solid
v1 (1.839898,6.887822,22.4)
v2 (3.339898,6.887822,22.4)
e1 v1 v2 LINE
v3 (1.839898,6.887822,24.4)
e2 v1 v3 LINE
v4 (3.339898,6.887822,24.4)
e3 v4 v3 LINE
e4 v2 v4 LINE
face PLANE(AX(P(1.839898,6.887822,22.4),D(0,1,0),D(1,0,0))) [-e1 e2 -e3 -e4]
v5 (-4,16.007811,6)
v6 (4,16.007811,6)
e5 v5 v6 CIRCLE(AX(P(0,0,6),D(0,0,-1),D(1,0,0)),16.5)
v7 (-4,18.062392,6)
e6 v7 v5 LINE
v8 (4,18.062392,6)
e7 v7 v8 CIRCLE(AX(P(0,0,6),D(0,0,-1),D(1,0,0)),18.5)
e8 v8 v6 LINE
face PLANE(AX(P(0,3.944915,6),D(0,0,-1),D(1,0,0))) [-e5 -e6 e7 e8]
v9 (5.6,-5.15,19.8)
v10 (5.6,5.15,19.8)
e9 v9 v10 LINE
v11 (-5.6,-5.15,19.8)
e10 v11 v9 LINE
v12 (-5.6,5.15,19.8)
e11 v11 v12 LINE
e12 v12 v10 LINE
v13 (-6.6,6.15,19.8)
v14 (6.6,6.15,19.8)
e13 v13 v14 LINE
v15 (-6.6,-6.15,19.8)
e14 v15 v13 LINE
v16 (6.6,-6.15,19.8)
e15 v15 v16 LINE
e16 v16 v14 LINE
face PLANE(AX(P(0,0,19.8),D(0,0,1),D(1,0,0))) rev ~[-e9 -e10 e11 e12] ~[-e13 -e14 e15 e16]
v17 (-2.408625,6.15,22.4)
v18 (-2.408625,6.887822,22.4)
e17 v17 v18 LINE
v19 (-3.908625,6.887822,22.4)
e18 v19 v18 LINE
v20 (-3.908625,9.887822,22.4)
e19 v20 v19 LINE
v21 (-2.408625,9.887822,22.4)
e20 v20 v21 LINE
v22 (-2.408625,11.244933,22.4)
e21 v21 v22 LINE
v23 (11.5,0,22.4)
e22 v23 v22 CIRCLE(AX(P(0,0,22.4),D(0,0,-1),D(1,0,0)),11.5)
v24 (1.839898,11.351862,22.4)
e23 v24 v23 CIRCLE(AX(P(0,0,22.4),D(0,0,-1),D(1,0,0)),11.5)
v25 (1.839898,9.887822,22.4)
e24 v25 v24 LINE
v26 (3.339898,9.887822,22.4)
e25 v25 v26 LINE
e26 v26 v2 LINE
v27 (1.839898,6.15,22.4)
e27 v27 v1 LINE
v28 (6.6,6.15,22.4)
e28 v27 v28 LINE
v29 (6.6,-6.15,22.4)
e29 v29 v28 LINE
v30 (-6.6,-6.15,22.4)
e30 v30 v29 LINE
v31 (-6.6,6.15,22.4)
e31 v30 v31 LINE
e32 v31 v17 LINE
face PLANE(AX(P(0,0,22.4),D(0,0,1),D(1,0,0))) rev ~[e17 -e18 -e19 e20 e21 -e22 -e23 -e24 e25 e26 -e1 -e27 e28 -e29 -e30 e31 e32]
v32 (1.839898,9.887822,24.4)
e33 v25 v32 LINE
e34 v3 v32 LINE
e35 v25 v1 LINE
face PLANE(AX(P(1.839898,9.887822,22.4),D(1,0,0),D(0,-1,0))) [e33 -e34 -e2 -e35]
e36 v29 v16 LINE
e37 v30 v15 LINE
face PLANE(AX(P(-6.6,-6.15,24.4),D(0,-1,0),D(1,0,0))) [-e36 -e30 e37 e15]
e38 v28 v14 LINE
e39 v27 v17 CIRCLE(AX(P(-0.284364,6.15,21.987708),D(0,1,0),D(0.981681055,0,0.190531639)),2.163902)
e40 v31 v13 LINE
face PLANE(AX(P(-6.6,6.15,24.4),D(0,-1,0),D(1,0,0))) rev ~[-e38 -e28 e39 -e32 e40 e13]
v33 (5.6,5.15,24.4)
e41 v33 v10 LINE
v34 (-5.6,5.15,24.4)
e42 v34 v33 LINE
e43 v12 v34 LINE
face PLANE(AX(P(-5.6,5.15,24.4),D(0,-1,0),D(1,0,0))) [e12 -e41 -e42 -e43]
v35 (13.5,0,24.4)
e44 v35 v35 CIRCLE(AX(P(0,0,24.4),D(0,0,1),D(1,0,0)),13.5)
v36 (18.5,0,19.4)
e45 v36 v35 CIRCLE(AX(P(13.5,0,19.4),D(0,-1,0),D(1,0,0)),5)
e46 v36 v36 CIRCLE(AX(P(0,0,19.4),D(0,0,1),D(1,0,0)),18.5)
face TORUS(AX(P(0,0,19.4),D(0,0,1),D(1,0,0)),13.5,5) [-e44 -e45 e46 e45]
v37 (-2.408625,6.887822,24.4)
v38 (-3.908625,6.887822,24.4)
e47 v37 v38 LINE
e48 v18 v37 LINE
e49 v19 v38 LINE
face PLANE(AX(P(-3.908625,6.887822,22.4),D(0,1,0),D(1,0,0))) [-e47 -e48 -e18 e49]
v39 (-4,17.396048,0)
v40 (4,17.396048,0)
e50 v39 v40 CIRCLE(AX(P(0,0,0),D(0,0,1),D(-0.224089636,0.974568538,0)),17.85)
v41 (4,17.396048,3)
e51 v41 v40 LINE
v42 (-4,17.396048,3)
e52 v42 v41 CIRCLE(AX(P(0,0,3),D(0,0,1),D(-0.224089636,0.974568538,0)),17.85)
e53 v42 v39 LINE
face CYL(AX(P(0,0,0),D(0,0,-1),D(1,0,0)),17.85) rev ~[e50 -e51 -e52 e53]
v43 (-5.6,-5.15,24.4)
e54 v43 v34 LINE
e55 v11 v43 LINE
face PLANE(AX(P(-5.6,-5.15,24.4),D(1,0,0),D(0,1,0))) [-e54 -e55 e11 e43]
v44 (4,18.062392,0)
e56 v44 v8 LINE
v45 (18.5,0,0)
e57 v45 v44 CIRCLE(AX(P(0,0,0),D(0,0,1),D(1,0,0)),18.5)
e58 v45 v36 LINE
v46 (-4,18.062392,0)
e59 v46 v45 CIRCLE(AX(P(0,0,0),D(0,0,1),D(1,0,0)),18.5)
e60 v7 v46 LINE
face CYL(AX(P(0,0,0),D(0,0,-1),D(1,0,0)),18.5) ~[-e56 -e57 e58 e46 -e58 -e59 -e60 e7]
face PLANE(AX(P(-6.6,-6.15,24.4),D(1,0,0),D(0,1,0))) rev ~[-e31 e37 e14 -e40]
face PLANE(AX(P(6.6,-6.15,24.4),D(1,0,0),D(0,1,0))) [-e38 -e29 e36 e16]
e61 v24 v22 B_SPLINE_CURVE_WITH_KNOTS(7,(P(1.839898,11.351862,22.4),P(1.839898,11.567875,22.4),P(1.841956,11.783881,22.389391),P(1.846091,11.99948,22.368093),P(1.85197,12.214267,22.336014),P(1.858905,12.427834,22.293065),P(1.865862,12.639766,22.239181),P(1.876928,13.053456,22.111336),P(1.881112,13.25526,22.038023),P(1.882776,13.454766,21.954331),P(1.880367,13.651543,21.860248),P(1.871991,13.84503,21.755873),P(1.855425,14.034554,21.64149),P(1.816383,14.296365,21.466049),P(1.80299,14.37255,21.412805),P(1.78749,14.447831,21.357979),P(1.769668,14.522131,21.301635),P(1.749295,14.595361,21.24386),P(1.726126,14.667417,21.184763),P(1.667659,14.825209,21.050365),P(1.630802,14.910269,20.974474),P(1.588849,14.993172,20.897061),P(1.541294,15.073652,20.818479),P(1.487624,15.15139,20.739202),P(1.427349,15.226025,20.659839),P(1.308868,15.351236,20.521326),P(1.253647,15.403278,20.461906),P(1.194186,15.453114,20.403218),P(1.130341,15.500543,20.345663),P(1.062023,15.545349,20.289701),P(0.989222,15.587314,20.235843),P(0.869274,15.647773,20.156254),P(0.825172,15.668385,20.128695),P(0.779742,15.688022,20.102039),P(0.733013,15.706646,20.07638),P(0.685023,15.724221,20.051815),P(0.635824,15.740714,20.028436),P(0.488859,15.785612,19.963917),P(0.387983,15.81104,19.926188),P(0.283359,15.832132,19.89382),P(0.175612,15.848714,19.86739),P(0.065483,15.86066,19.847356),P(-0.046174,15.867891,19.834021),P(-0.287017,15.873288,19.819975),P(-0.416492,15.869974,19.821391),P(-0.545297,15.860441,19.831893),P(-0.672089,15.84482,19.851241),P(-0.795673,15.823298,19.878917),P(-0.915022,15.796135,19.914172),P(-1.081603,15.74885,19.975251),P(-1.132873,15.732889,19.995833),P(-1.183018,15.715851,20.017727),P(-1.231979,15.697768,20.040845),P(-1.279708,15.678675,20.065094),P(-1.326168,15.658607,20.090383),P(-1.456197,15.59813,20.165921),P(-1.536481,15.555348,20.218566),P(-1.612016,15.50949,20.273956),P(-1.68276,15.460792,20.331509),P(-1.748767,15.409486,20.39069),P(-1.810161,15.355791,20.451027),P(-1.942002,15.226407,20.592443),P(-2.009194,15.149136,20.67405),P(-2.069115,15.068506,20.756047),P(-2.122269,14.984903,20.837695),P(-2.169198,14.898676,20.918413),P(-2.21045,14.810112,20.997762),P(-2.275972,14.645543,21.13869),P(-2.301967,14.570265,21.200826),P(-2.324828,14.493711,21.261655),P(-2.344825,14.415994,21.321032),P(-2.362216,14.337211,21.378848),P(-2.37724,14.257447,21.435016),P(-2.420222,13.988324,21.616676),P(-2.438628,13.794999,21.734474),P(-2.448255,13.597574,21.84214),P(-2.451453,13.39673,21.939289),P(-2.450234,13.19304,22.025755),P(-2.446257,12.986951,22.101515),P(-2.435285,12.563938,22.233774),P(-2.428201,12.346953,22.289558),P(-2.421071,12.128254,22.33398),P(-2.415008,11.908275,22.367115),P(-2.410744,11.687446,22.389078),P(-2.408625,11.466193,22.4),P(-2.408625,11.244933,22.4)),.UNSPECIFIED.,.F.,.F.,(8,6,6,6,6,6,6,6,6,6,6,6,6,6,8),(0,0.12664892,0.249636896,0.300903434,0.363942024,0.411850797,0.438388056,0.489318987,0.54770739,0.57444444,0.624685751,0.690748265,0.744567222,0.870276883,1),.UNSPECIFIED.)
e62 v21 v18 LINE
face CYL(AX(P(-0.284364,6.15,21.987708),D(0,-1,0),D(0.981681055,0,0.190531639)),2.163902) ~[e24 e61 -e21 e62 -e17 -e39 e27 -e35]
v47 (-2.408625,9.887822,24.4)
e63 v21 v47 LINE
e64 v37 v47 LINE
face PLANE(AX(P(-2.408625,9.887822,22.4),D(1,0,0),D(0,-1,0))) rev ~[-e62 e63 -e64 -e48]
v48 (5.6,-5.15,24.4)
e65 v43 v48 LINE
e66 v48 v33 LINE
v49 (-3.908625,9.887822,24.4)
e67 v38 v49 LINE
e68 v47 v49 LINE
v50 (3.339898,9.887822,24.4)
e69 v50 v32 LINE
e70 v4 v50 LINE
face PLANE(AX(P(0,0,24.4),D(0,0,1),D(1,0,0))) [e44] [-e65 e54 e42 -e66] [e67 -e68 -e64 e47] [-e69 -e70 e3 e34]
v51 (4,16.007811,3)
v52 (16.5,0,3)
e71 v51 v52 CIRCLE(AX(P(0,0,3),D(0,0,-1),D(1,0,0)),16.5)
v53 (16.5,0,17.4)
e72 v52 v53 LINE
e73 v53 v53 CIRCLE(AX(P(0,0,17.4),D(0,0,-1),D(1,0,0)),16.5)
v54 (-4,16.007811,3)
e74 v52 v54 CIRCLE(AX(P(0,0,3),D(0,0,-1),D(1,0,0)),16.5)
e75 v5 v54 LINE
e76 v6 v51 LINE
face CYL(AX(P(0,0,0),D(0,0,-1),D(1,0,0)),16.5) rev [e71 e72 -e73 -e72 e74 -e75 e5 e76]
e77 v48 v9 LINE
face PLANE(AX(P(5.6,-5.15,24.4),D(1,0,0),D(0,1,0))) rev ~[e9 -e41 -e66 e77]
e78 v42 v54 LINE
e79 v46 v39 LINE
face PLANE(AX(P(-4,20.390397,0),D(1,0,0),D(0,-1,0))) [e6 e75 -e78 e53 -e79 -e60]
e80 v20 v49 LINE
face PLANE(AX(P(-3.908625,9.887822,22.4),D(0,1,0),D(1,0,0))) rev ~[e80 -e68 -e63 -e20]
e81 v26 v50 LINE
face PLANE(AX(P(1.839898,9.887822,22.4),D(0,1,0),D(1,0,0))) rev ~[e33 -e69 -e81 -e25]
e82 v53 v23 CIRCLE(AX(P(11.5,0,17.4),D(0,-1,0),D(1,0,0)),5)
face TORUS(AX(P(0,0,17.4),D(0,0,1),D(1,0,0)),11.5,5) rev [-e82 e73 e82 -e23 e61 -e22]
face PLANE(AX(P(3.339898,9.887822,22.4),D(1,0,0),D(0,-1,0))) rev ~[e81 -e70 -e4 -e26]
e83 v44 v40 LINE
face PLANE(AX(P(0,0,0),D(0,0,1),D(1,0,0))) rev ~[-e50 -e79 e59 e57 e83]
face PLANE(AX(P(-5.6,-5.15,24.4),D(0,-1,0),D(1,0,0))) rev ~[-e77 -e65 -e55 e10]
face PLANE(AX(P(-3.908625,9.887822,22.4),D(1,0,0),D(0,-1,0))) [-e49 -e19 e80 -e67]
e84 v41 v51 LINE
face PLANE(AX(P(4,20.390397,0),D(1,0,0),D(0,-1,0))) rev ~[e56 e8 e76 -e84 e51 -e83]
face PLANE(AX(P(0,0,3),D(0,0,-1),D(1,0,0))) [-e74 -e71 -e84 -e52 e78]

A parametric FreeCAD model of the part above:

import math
import FreeCAD as App
import Part
import Sketcher
from FreeCAD import Vector
Q = App.Units.Quantity


def edges_at(feature, points):
    """Names of the edges that pass closest to the given points."""
    edges = feature.Shape.Edges
    near = lambda p: min(range(len(edges)), key=lambda i: edges[i].distToShape(Part.Vertex(*p))[0])
    return sorted({f"Edge{near(p) + 1}" for p in points})


def faces_at(feature, points):
    """Names of the faces that lie closest to the given points."""
    faces = feature.Shape.Faces
    near = lambda p: min(range(len(faces)), key=lambda i: faces[i].distToShape(Part.Vertex(*p))[0])
    return sorted({f"Face{near(p) + 1}" for p in points})


def add_polygon(sketch, points):
    """Adds a closed chain of lines whose ends are joined by coincident constraints."""
    first, n = sketch.GeometryCount, len(points)
    for a, b in zip(points, points[1:] + points[:1]):
        sketch.addGeometry(Part.LineSegment(App.Vector(*a, 0), App.Vector(*b, 0)), False)
    for i in range(n):
        sketch.addConstraint(Sketcher.Constraint("Coincident", first + i, 2, first + (i + 1) % n, 1))

doc = App.newDocument("Part")
body = doc.addObject("PartDesign::Body", "Body")

sketch1 = body.newObject("Sketcher::SketchObject", "Sketch")
sketch1.AttachmentSupport = (doc.getObject("XY_Plane"), [""])
sketch1.MapMode = "FlatFace"
sketch1.addGeometry(Part.Circle(Vector(0, 0, 0), Vector(0, 0, 1), 18), False)
sketch1.addConstraint(Sketcher.Constraint("Coincident", 0, 3, -1, 1))
sketch1.addConstraint(Sketcher.Constraint("Diameter", 0, Q("37 mm")))
pad1 = body.newObject("PartDesign::Pad", "Pad")
pad1.Profile = sketch1
pad1.Length = 24.4
doc.recompute()

thickness = body.newObject("PartDesign::Thickness", "Thickness")
thickness.Base = (pad1, faces_at(pad1, [(0, 0, 0)]))
thickness.Value = 2
thickness.Reversed = True
thickness.Join = "Arc"
doc.recompute()

fillet = body.newObject("PartDesign::Fillet", "Fillet")
fillet.Base = (thickness, edges_at(thickness, [(-16.5, 0, 22.4)]))
fillet.Radius = 5
doc.recompute()

fillet2 = body.newObject("PartDesign::Fillet", "Fillet001")
fillet2.Base = (fillet, edges_at(fillet, [(-18.5, 0, 24.4)]))
fillet2.Radius = 5

sketch2 = body.newObject("Sketcher::SketchObject", "Sketch001")
sketch2.AttachmentSupport = (doc.getObject("XY_Plane"), [""])
sketch2.MapMode = "FlatFace"
sketch2.AttachmentOffset = App.Placement(Vector(0, 0, 24.4), App.Rotation())
add_polygon(sketch2, [(-6, 5), (-6, -5), (6, -5), (6, 5)])
sketch2.addConstraint(Sketcher.Constraint("Vertical", 0))
sketch2.addConstraint(Sketcher.Constraint("Horizontal", 1))
sketch2.addConstraint(Sketcher.Constraint("Vertical", 2))
sketch2.addConstraint(Sketcher.Constraint("Horizontal", 3))
sketch2.addConstraint(Sketcher.Constraint("Symmetric", 0, 2, 2, 2, -1, 1))
sketch2.addConstraint(Sketcher.Constraint("DistanceX", 1, 1, 1, 2, Q("11.2 mm")))
sketch2.addConstraint(Sketcher.Constraint("DistanceY", 0, 2, 0, 1, Q("10.3 mm")))
pocket1 = body.newObject("PartDesign::Pocket", "Pocket")
pocket1.Profile = sketch2
pocket1.Length = 25

sketch3 = body.newObject("Sketcher::SketchObject", "Sketch002")
sketch3.AttachmentSupport = (doc.getObject("XY_Plane"), [""])
sketch3.MapMode = "FlatFace"
add_polygon(sketch3, [(-4, -13), (-4, 20), (4, 20), (4, -13)])
sketch3.addConstraint(Sketcher.Constraint("Vertical", 0))
sketch3.addConstraint(Sketcher.Constraint("Horizontal", 1))
sketch3.addConstraint(Sketcher.Constraint("Vertical", 2))
sketch3.addConstraint(Sketcher.Constraint("Horizontal", 3))
sketch3.addConstraint(Sketcher.Constraint("DistanceX", 1, 1, 1, 2, Q("8 mm")))
sketch3.addConstraint(Sketcher.Constraint("DistanceX", 0, 2, -1, 1, Q("4 mm")))
sketch3.addConstraint(Sketcher.Constraint("DistanceY", 0, 1, 0, 2, Q("32.890964 mm")))
sketch3.addConstraint(Sketcher.Constraint("DistanceY", -1, 1, 0, 2, Q("20.390397 mm")))
pocket2 = body.newObject("PartDesign::Pocket", "Pocket001")
pocket2.Profile = sketch3
pocket2.Length = 6
pocket2.Reversed = True

sketch4 = body.newObject("Sketcher::SketchObject", "Sketch003")
sketch4.AttachmentSupport = (doc.getObject("XY_Plane"), [""])
sketch4.MapMode = "FlatFace"
sketch4.addGeometry(Part.ArcOfCircle(Part.Circle(Vector(0, 0, 0), Vector(0, 0, 1), 17.9), math.radians(103), math.radians(437)), False)
sketch4.addGeometry(Part.LineSegment(Vector(-4, 17.4, 0), Vector(-4, 20.4, 0)), False)
sketch4.addGeometry(Part.LineSegment(Vector(-4, 20.4, 0), Vector(4, 20.4, 0)), False)
sketch4.addGeometry(Part.LineSegment(Vector(4, 20.4, 0), Vector(4, 17.4, 0)), False)
sketch4.addConstraint(Sketcher.Constraint("Coincident", 0, 1, 1, 1))
sketch4.addConstraint(Sketcher.Constraint("Coincident", 1, 2, 2, 1))
sketch4.addConstraint(Sketcher.Constraint("Coincident", 2, 2, 3, 1))
sketch4.addConstraint(Sketcher.Constraint("Coincident", 3, 2, 0, 2))
sketch4.addConstraint(Sketcher.Constraint("Vertical", 1))
sketch4.addConstraint(Sketcher.Constraint("Horizontal", 2))
sketch4.addConstraint(Sketcher.Constraint("Vertical", 3))
sketch4.addConstraint(Sketcher.Constraint("Coincident", 0, 3, -1, 1))
sketch4.addConstraint(Sketcher.Constraint("Horizontal", 0, 1, 3, 2))
sketch4.addConstraint(Sketcher.Constraint("DistanceX", 2, 1, 2, 2, Q("8 mm")))
sketch4.addConstraint(Sketcher.Constraint("Radius", 0, Q("17.85 mm")))
sketch4.addConstraint(Sketcher.Constraint("DistanceY", 1, 1, 1, 2, Q("2.994349 mm")))
pocket3 = body.newObject("PartDesign::Pocket", "Pocket002")
pocket3.Profile = sketch4
pocket3.Length = 3
pocket3.Reversed = True

sketch5 = body.newObject("Sketcher::SketchObject", "Sketch004")
sketch5.AttachmentSupport = (doc.getObject("XY_Plane"), [""])
sketch5.MapMode = "FlatFace"
sketch5.AttachmentOffset = App.Placement(Vector(0, 0, 24.4), App.Rotation())
add_polygon(sketch5, [(-7, 6), (-7, -6), (7, -6), (7, 6)])
add_polygon(sketch5, [(6, -5), (-6, -5), (-6, 5), (6, 5)])
sketch5.addConstraint(Sketcher.Constraint("Vertical", 0))
sketch5.addConstraint(Sketcher.Constraint("Horizontal", 1))
sketch5.addConstraint(Sketcher.Constraint("Vertical", 2))
sketch5.addConstraint(Sketcher.Constraint("Horizontal", 3))
sketch5.addConstraint(Sketcher.Constraint("Horizontal", 4))
sketch5.addConstraint(Sketcher.Constraint("Vertical", 5))
sketch5.addConstraint(Sketcher.Constraint("Horizontal", 6))
sketch5.addConstraint(Sketcher.Constraint("Vertical", 7))
sketch5.addConstraint(Sketcher.Constraint("Symmetric", 0, 2, 2, 2, -1, 1))
sketch5.addConstraint(Sketcher.Constraint("Symmetric", 4, 2, 6, 2, -1, 1))
sketch5.addConstraint(Sketcher.Constraint("DistanceX", 1, 1, 1, 2, Q("13.2 mm")))
sketch5.addConstraint(Sketcher.Constraint("DistanceX", 4, 2, 4, 1, Q("11.2 mm")))
sketch5.addConstraint(Sketcher.Constraint("DistanceY", 0, 2, 0, 1, Q("12.3 mm")))
sketch5.addConstraint(Sketcher.Constraint("DistanceY", 5, 1, 5, 2, Q("10.3 mm")))
pad2 = body.newObject("PartDesign::Pad", "Pad001")
pad2.Profile = sketch5
pad2.Length = 4.6
pad2.Reversed = True

sketch6 = body.newObject("Sketcher::SketchObject", "Sketch005")
sketch6.AttachmentSupport = (doc.getObject("XZ_Plane"), [""])
sketch6.MapMode = "FlatFace"
sketch6.AttachmentOffset = App.Placement(Vector(0, 0, -6.15), App.Rotation())
sketch6.addGeometry(Part.LineSegment(Vector(-2.4, 22.4, 0), Vector(1.8, 22.4, 0)), False)
sketch6.addGeometry(Part.ArcOfCircle(Part.Circle(Vector(-0.3, 22, 0), Vector(0, 0, 1), 2.2), math.radians(169), math.radians(371)), False)
sketch6.addConstraint(Sketcher.Constraint("Coincident", 0, 1, 1, 1))
sketch6.addConstraint(Sketcher.Constraint("Coincident", 1, 2, 0, 2))
sketch6.addConstraint(Sketcher.Constraint("Horizontal", 0))
sketch6.addConstraint(Sketcher.Constraint("DistanceY", -1, 1, 0, 1, Q("22.4 mm")))
sketch6.addConstraint(Sketcher.Constraint("Radius", 1, Q("2.163902 mm")))
sketch6.addConstraint(Sketcher.Constraint("DistanceX", 0, 1, 0, 2, Q("4.248522 mm")))
sketch6.addConstraint(Sketcher.Constraint("DistanceX", 1, 3, -1, 1, Q("0.284364 mm")))
pad3 = body.newObject("PartDesign::Pad", "Pad002")
pad3.Profile = sketch6
pad3.Length = 10
pad3.Reversed = True

sketch7 = body.newObject("Sketcher::SketchObject", "Sketch006")
sketch7.AttachmentSupport = (doc.getObject("XY_Plane"), [""])
sketch7.MapMode = "FlatFace"
sketch7.AttachmentOffset = App.Placement(Vector(0, 0, 22.4), App.Rotation())
add_polygon(sketch7, [(-3.9, 6.9), (-3.9, 9.9), (-2.4, 9.9), (-2.4, 6.9)])
add_polygon(sketch7, [(1.8, 6.9), (1.8, 9.9), (3.3, 9.9), (3.3, 6.9)])
sketch7.addConstraint(Sketcher.Constraint("Vertical", 0))
sketch7.addConstraint(Sketcher.Constraint("Horizontal", 1))
sketch7.addConstraint(Sketcher.Constraint("Vertical", 2))
sketch7.addConstraint(Sketcher.Constraint("Horizontal", 3))
sketch7.addConstraint(Sketcher.Constraint("Vertical", 4))
sketch7.addConstraint(Sketcher.Constraint("Horizontal", 5))
sketch7.addConstraint(Sketcher.Constraint("Vertical", 6))
sketch7.addConstraint(Sketcher.Constraint("Horizontal", 7))
sketch7.addConstraint(Sketcher.Constraint("Horizontal", 1, 2, 4, 2))
sketch7.addConstraint(Sketcher.Constraint("Horizontal", 3, 2, 6, 2))
sketch7.addConstraint(Sketcher.Constraint("Equal", 3, 5))
sketch7.addConstraint(Sketcher.Constraint("DistanceY", 0, 1, 0, 2, Q("3 mm")))
sketch7.addConstraint(Sketcher.Constraint("DistanceX", 1, 1, 1, 2, Q("1.5 mm")))
sketch7.addConstraint(Sketcher.Constraint("DistanceY", -1, 1, 0, 2, Q("9.887822 mm")))
sketch7.addConstraint(Sketcher.Constraint("DistanceX", 0, 2, -1, 1, Q("3.908625 mm")))
sketch7.addConstraint(Sketcher.Constraint("DistanceX", -1, 1, 4, 2, Q("1.839898 mm")))
pocket4 = body.newObject("PartDesign::Pocket", "Pocket003")
pocket4.Profile = sketch7
pocket4.Length = 25
pocket4.Reversed = True

doc.recompute()
